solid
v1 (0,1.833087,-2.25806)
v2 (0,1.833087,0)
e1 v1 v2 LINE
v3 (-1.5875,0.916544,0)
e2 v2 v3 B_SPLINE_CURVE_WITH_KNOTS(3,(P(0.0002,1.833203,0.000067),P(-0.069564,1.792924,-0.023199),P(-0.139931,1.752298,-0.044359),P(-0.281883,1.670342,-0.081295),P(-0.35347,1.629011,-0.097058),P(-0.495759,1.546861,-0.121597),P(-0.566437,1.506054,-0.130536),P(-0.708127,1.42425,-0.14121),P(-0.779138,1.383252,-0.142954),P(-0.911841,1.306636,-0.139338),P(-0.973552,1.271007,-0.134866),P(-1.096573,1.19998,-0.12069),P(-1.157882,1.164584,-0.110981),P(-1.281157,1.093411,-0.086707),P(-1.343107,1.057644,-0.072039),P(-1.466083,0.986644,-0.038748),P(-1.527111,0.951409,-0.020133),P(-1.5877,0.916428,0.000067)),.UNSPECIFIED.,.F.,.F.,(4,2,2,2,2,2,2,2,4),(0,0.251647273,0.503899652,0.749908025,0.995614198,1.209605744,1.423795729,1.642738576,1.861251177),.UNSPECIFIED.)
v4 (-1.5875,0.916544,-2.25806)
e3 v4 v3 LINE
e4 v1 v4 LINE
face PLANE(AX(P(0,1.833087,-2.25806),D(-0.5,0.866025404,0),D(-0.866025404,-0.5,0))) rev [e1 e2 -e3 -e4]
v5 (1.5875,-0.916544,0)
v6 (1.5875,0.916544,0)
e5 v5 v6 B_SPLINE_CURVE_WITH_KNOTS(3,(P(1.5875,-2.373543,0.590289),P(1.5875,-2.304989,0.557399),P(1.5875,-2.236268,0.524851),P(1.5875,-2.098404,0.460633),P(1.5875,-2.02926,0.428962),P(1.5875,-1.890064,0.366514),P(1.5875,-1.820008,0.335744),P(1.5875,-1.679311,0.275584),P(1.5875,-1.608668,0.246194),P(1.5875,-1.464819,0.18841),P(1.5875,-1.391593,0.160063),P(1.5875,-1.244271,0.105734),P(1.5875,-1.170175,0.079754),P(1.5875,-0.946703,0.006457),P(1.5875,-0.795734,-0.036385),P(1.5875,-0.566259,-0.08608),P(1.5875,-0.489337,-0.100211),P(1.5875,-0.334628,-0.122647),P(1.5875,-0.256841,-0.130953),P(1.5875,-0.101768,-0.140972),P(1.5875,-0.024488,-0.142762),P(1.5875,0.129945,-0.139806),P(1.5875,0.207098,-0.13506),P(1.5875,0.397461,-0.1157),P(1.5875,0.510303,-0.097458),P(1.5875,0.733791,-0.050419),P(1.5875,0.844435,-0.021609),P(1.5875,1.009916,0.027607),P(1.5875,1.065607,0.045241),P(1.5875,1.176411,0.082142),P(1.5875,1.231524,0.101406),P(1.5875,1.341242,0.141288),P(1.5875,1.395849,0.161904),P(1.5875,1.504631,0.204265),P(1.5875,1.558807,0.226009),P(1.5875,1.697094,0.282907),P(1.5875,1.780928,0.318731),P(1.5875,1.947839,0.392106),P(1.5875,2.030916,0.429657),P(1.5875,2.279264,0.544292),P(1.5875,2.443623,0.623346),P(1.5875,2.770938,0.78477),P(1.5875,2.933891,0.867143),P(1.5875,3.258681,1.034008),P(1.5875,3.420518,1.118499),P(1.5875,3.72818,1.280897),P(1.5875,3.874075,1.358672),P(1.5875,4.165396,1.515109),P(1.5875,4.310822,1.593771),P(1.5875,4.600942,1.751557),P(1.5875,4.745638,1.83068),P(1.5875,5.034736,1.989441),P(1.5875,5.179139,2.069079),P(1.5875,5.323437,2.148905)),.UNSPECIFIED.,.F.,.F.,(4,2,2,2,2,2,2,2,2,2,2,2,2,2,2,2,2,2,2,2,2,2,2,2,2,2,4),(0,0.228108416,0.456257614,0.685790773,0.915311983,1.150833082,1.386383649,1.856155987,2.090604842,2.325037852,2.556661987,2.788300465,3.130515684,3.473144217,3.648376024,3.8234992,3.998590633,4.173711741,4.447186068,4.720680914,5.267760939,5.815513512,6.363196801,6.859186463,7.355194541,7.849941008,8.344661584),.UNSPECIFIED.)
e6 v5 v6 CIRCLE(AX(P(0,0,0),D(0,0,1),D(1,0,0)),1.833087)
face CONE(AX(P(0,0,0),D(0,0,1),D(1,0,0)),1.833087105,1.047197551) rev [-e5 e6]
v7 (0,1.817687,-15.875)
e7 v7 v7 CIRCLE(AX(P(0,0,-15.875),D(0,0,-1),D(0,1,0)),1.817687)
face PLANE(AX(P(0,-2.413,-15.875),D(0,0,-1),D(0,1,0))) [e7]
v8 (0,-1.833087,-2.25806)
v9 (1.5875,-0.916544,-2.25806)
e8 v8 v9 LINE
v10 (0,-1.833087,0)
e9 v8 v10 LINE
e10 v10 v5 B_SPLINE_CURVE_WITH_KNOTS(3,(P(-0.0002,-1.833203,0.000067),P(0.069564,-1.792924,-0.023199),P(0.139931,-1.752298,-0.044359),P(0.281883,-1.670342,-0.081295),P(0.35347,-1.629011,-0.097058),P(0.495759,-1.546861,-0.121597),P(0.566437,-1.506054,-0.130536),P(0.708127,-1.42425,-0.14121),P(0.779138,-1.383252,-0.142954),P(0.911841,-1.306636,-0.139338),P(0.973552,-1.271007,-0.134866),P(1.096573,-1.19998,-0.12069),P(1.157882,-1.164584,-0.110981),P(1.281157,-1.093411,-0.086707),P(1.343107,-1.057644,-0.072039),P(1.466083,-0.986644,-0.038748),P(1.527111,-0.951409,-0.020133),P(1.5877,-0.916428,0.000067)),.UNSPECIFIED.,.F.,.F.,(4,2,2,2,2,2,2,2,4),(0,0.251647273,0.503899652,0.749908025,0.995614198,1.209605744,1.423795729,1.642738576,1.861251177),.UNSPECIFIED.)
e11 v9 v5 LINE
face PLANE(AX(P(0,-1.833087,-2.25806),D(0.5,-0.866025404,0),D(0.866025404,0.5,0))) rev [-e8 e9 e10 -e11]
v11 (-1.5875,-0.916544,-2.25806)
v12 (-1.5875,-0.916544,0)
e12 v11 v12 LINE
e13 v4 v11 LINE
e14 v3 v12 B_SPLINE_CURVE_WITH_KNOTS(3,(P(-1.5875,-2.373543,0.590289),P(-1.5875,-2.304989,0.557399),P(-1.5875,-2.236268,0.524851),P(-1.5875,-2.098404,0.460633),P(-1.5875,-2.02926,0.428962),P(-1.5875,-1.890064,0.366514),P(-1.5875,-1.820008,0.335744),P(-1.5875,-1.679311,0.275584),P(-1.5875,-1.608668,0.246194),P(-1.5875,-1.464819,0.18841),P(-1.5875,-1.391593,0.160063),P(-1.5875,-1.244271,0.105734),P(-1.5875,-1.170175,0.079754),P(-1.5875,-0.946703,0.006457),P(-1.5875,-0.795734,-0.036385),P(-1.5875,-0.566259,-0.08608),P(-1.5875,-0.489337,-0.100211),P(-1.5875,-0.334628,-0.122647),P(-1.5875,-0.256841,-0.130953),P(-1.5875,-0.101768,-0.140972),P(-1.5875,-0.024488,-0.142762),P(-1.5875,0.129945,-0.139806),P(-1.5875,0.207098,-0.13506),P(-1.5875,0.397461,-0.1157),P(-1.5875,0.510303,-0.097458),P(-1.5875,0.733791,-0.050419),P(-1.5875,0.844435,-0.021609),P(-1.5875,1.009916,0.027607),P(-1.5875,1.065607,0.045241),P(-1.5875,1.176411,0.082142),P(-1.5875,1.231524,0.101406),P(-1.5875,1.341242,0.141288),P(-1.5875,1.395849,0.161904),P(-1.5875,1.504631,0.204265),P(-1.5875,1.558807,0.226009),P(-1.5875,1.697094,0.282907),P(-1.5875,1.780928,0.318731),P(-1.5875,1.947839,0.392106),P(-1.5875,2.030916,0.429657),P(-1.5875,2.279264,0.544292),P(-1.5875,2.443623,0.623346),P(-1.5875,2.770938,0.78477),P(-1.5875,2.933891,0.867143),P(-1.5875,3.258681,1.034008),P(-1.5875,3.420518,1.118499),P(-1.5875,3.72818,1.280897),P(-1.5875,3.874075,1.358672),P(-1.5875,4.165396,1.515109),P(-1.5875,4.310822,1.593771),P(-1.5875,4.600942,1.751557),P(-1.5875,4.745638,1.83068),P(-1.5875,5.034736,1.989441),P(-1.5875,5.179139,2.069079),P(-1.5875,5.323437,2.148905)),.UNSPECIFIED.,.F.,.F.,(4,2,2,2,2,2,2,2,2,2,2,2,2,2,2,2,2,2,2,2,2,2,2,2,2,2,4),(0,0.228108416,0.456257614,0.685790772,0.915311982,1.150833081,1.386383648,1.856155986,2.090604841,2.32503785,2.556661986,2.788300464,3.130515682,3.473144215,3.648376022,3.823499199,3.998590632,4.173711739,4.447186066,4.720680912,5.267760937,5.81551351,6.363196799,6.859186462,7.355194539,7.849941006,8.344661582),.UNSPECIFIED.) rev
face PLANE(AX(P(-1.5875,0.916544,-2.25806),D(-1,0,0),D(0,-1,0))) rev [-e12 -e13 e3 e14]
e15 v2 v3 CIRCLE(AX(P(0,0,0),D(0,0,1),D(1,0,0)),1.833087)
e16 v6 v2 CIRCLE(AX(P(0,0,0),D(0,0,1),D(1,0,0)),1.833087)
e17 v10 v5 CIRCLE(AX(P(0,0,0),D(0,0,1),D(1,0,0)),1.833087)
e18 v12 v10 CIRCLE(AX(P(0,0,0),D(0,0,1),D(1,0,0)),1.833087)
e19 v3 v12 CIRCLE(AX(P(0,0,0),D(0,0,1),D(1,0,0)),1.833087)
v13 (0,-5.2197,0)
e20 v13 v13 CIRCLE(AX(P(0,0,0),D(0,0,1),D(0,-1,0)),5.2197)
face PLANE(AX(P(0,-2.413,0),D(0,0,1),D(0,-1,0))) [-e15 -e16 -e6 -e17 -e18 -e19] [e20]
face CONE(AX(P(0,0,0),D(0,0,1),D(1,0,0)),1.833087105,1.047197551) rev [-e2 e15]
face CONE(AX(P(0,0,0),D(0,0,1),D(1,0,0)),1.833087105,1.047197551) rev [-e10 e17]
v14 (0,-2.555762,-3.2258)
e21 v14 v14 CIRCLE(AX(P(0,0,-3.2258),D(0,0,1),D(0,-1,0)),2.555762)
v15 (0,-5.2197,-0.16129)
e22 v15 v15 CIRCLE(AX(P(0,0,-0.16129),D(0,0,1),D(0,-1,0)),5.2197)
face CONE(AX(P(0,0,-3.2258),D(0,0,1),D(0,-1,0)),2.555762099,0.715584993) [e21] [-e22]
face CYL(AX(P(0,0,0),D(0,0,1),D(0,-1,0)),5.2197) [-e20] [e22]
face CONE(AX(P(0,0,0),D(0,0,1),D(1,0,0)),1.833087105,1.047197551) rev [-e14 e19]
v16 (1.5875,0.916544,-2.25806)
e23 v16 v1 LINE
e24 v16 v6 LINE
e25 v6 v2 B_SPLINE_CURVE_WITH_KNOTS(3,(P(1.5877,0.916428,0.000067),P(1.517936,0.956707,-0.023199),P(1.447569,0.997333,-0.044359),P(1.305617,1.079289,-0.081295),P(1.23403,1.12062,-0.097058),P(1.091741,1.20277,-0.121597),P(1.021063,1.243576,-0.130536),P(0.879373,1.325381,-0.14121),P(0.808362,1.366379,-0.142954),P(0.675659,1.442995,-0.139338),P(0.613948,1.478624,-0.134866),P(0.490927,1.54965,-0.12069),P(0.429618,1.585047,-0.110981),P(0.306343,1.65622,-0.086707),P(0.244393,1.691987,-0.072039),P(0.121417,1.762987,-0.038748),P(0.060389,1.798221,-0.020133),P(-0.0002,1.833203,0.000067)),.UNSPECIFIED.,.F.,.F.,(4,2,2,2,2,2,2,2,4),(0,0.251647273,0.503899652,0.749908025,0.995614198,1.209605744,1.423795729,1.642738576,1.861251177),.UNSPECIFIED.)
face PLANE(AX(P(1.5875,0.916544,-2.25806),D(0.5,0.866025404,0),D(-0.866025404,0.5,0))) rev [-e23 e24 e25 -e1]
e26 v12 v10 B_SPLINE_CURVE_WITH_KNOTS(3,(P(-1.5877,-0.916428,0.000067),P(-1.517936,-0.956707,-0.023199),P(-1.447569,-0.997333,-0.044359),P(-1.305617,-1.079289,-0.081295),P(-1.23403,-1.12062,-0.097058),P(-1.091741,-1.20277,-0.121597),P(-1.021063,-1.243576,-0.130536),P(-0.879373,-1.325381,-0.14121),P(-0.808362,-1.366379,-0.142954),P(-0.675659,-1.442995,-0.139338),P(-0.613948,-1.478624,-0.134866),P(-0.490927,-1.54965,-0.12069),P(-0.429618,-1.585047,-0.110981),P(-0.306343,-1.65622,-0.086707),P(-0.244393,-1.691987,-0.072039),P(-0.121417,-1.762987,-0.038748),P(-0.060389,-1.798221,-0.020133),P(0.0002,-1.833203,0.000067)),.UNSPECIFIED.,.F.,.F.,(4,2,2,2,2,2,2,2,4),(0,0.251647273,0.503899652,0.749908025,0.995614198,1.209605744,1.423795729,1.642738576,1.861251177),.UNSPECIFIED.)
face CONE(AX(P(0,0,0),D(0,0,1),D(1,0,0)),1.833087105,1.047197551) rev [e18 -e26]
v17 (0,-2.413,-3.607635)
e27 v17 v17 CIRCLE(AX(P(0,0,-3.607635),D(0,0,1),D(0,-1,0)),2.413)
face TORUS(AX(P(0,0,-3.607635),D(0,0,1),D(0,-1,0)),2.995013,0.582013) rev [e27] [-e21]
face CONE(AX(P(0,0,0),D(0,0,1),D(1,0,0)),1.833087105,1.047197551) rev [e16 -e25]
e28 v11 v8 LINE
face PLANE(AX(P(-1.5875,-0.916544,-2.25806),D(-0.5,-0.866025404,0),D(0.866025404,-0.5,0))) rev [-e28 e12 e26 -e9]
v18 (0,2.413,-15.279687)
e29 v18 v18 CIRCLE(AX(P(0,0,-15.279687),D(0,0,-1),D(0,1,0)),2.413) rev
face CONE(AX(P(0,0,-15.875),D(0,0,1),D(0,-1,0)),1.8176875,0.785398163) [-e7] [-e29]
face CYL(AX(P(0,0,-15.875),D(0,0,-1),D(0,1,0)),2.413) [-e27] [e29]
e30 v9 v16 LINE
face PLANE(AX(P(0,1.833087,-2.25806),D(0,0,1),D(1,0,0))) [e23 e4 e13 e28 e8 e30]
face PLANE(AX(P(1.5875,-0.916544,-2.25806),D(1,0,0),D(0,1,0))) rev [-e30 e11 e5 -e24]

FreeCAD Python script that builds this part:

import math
import FreeCAD as App
import Part
import Sketcher

V = App.Vector
Q = App.Units.Quantity


def edges_at(feature, points):
    """Names of the edges that pass closest to the given points."""
    edges = feature.Shape.Edges
    near = lambda p: min(range(len(edges)), key=lambda i: edges[i].distToShape(Part.Vertex(*p))[0])
    return sorted({f"Edge{near(p) + 1}" for p in points})

doc = App.newDocument("Part")
body = doc.addObject("PartDesign::Body", "Body")

# Sketch on YZ plane
sketch1 = body.newObject("Sketcher::SketchObject", "Sketch")
sketch1.AttachmentSupport = (doc.getObject("YZ_Plane"), [""])
sketch1.MapMode = "FlatFace"
sketch1.addGeometry(Part.LineSegment(V(2.4, 0, 0), V(0, 0, 0)), False)
sketch1.addGeometry(Part.LineSegment(V(0, 0, 0), V(0, -15.9, 0)), False)
sketch1.addGeometry(Part.LineSegment(V(0, -15.9, 0), V(2.4, -15.9, 0)), False)
sketch1.addGeometry(Part.LineSegment(V(2.4, -15.9, 0), V(2.4, 0, 0)), False)
sketch1.addConstraint(Sketcher.Constraint("Coincident", 0, 2, 1, 1))
sketch1.addConstraint(Sketcher.Constraint("Coincident", 1, 2, 2, 1))
sketch1.addConstraint(Sketcher.Constraint("Coincident", 2, 2, 3, 1))
sketch1.addConstraint(Sketcher.Constraint("Coincident", 3, 2, 0, 1))
sketch1.addConstraint(Sketcher.Constraint("Horizontal", 0))
sketch1.addConstraint(Sketcher.Constraint("Vertical", 1))
sketch1.addConstraint(Sketcher.Constraint("Horizontal", 2))
sketch1.addConstraint(Sketcher.Constraint("Vertical", 3))
sketch1.addConstraint(Sketcher.Constraint("Coincident", 0, 2, -1, 1))
sketch1.addConstraint(Sketcher.Constraint("DistanceX", 0, 2, 0, 1, Q("0.095 in")))
sketch1.addConstraint(Sketcher.Constraint("DistanceY", 1, 2, 1, 1, Q("0.625 in")))
revolution = body.newObject("PartDesign::Revolution", "Revolution")
revolution.Profile = sketch1
revolution.ReferenceAxis = (sketch1, ["V_Axis"])
revolution.Angle = 360
doc.recompute()

chamfer = body.newObject("PartDesign::Chamfer", "Chamfer")
chamfer.Base = (revolution, edges_at(revolution, [(0, -2.413, -15.875)]))
chamfer.Size = 0.595313

# Sketch on YZ plane
sketch2 = body.newObject("Sketcher::SketchObject", "Sketch001")
sketch2.AttachmentSupport = (doc.getObject("YZ_Plane"), [""])
sketch2.MapMode = "FlatFace"
sketch2.addGeometry(Part.LineSegment(V(5.22, -0.16, 0), V(5.22, 0, 0)), False)
sketch2.addGeometry(Part.LineSegment(V(5.22, 0, 0), V(0, 0, 0)), False)
sketch2.addGeometry(Part.LineSegment(V(0, 0, 0), V(0, -3.61, 0)), False)
sketch2.addGeometry(Part.LineSegment(V(0, -3.61, 0), V(2.41, -3.61, 0)), False)
sketch2.addGeometry(Part.ArcOfCircle(Part.Circle(V(3, -3.61, 0), V(0, 0, 1), 0.58), math.radians(139), math.radians(180)), False)
sketch2.addGeometry(Part.LineSegment(V(2.56, -3.23, 0), V(5.22, -0.16, 0)), False)
sketch2.addConstraint(Sketcher.Constraint("Coincident", 0, 2, 1, 1))
sketch2.addConstraint(Sketcher.Constraint("Coincident", 1, 2, 2, 1))
sketch2.addConstraint(Sketcher.Constraint("Coincident", 2, 2, 3, 1))
sketch2.addConstraint(Sketcher.Constraint("Coincident", 3, 2, 4, 2))
sketch2.addConstraint(Sketcher.Constraint("Tangent", 4, 1, 5, 1))
sketch2.addConstraint(Sketcher.Constraint("Coincident", 5, 2, 0, 1))
sketch2.addConstraint(Sketcher.Constraint("Vertical", 0))
sketch2.addConstraint(Sketcher.Constraint("Horizontal", 1))
sketch2.addConstraint(Sketcher.Constraint("Vertical", 2))
sketch2.addConstraint(Sketcher.Constraint("Horizontal", 3))
sketch2.addConstraint(Sketcher.Constraint("Coincident", 1, 2, -1, 1))
sketch2.addConstraint(Sketcher.Constraint("Horizontal", 4, 3, 2, 2))
sketch2.addConstraint(Sketcher.Constraint("Angle", 5, Q("49 deg")))
sketch2.addConstraint(Sketcher.Constraint("DistanceX", 3, 1, 3, 2, Q("0.095 in")))
sketch2.addConstraint(Sketcher.Constraint("DistanceX", 1, 2, 1, 1, Q("0.2055 in")))
sketch2.addConstraint(Sketcher.Constraint("DistanceY", 4, 1, -1, 1, Q("0.127 in")))
sketch2.addConstraint(Sketcher.Constraint("Radius", 4, 0.582013))
revolution2 = body.newObject("PartDesign::Revolution", "Revolution001")
revolution2.Profile = sketch2
revolution2.ReferenceAxis = (sketch2, ["V_Axis"])
revolution2.Angle = 360

# Sketch on XY plane
sketch3 = body.newObject("Sketcher::SketchObject", "Sketch002")
sketch3.AttachmentSupport = (doc.getObject("XY_Plane"), [""])
sketch3.MapMode = "FlatFace"
sketch3.addGeometry(Part.LineSegment(V(0, 1.8, 0), V(-1.6, 0.9, 0)), False)
sketch3.addGeometry(Part.LineSegment(V(-1.6, 0.9, 0), V(-1.6, -0.9, 0)), False)
sketch3.addGeometry(Part.LineSegment(V(-1.6, -0.9, 0), V(0, -1.8, 0)), False)
sketch3.addGeometry(Part.LineSegment(V(0, -1.8, 0), V(1.6, -0.9, 0)), False)
sketch3.addGeometry(Part.LineSegment(V(1.6, -0.9, 0), V(1.6, 0.9, 0)), False)
sketch3.addGeometry(Part.LineSegment(V(1.6, 0.9, 0), V(0, 1.8, 0)), False)
sketch3.addConstraint(Sketcher.Constraint("Coincident", 0, 2, 1, 1))
sketch3.addConstraint(Sketcher.Constraint("Coincident", 1, 2, 2, 1))
sketch3.addConstraint(Sketcher.Constraint("Coincident", 2, 2, 3, 1))
sketch3.addConstraint(Sketcher.Constraint("Coincident", 3, 2, 4, 1))
sketch3.addConstraint(Sketcher.Constraint("Coincident", 4, 2, 5, 1))
sketch3.addConstraint(Sketcher.Constraint("Coincident", 5, 2, 0, 1))
sketch3.addConstraint(Sketcher.Constraint("Vertical", 1))
sketch3.addConstraint(Sketcher.Constraint("Vertical", 4))
sketch3.addConstraint(Sketcher.Constraint("Symmetric", 0, 2, 3, 2, -1, 1))
sketch3.addConstraint(Sketcher.Constraint("Symmetric", 2, 2, 5, 2, -1, 1))
sketch3.addConstraint(Sketcher.Constraint("PointOnObject", 2, 2, -2))
sketch3.addConstraint(Sketcher.Constraint("Parallel", 2, 5))
sketch3.addConstraint(Sketcher.Constraint("Horizontal", 1, 2, 3, 2))
sketch3.addConstraint(Sketcher.Constraint("Angle", 0, Q("-150 deg")))
sketch3.addConstraint(Sketcher.Constraint("DistanceX", 0, 2, -1, 1, Q("0.0625 in")))
sketch3.addConstraint(Sketcher.Constraint("DistanceY", 1, 2, 1, 1, 1.833087))
pocket1 = body.newObject("PartDesign::Pocket", "Pocket")
pocket1.Profile = sketch3
pocket1.Length = Q("0.0889 in")

# Sketch on YZ plane
sketch4 = body.newObject("Sketcher::SketchObject", "Sketch003")
sketch4.AttachmentSupport = (doc.getObject("YZ_Plane"), [""])
sketch4.MapMode = "FlatFace"
sketch4.addGeometry(Part.LineSegment(V(0, 0, 0), V(-1.8, 0, 0)), False)
sketch4.addGeometry(Part.LineSegment(V(-1.8, 0, 0), V(0, -1.1, 0)), False)
sketch4.addGeometry(Part.LineSegment(V(0, -1.1, 0), V(0, 0, 0)), False)
sketch4.addConstraint(Sketcher.Constraint("Coincident", 0, 2, 1, 1))
sketch4.addConstraint(Sketcher.Constraint("Coincident", 1, 2, 2, 1))
sketch4.addConstraint(Sketcher.Constraint("Coincident", 2, 2, 0, 1))
sketch4.addConstraint(Sketcher.Constraint("Horizontal", 0))
sketch4.addConstraint(Sketcher.Constraint("Vertical", 2))
sketch4.addConstraint(Sketcher.Constraint("Coincident", 2, 2, -1, 1))
sketch4.addConstraint(Sketcher.Constraint("Angle", 1, Q("-30 deg")))
sketch4.addConstraint(Sketcher.Constraint("DistanceX", 0, 2, 0, 1, 1.833087))
groove = body.newObject("PartDesign::Groove", "Groove")
groove.Profile = sketch4
groove.ReferenceAxis = (sketch4, ["V_Axis"])
groove.Angle = 360

doc.recompute()
